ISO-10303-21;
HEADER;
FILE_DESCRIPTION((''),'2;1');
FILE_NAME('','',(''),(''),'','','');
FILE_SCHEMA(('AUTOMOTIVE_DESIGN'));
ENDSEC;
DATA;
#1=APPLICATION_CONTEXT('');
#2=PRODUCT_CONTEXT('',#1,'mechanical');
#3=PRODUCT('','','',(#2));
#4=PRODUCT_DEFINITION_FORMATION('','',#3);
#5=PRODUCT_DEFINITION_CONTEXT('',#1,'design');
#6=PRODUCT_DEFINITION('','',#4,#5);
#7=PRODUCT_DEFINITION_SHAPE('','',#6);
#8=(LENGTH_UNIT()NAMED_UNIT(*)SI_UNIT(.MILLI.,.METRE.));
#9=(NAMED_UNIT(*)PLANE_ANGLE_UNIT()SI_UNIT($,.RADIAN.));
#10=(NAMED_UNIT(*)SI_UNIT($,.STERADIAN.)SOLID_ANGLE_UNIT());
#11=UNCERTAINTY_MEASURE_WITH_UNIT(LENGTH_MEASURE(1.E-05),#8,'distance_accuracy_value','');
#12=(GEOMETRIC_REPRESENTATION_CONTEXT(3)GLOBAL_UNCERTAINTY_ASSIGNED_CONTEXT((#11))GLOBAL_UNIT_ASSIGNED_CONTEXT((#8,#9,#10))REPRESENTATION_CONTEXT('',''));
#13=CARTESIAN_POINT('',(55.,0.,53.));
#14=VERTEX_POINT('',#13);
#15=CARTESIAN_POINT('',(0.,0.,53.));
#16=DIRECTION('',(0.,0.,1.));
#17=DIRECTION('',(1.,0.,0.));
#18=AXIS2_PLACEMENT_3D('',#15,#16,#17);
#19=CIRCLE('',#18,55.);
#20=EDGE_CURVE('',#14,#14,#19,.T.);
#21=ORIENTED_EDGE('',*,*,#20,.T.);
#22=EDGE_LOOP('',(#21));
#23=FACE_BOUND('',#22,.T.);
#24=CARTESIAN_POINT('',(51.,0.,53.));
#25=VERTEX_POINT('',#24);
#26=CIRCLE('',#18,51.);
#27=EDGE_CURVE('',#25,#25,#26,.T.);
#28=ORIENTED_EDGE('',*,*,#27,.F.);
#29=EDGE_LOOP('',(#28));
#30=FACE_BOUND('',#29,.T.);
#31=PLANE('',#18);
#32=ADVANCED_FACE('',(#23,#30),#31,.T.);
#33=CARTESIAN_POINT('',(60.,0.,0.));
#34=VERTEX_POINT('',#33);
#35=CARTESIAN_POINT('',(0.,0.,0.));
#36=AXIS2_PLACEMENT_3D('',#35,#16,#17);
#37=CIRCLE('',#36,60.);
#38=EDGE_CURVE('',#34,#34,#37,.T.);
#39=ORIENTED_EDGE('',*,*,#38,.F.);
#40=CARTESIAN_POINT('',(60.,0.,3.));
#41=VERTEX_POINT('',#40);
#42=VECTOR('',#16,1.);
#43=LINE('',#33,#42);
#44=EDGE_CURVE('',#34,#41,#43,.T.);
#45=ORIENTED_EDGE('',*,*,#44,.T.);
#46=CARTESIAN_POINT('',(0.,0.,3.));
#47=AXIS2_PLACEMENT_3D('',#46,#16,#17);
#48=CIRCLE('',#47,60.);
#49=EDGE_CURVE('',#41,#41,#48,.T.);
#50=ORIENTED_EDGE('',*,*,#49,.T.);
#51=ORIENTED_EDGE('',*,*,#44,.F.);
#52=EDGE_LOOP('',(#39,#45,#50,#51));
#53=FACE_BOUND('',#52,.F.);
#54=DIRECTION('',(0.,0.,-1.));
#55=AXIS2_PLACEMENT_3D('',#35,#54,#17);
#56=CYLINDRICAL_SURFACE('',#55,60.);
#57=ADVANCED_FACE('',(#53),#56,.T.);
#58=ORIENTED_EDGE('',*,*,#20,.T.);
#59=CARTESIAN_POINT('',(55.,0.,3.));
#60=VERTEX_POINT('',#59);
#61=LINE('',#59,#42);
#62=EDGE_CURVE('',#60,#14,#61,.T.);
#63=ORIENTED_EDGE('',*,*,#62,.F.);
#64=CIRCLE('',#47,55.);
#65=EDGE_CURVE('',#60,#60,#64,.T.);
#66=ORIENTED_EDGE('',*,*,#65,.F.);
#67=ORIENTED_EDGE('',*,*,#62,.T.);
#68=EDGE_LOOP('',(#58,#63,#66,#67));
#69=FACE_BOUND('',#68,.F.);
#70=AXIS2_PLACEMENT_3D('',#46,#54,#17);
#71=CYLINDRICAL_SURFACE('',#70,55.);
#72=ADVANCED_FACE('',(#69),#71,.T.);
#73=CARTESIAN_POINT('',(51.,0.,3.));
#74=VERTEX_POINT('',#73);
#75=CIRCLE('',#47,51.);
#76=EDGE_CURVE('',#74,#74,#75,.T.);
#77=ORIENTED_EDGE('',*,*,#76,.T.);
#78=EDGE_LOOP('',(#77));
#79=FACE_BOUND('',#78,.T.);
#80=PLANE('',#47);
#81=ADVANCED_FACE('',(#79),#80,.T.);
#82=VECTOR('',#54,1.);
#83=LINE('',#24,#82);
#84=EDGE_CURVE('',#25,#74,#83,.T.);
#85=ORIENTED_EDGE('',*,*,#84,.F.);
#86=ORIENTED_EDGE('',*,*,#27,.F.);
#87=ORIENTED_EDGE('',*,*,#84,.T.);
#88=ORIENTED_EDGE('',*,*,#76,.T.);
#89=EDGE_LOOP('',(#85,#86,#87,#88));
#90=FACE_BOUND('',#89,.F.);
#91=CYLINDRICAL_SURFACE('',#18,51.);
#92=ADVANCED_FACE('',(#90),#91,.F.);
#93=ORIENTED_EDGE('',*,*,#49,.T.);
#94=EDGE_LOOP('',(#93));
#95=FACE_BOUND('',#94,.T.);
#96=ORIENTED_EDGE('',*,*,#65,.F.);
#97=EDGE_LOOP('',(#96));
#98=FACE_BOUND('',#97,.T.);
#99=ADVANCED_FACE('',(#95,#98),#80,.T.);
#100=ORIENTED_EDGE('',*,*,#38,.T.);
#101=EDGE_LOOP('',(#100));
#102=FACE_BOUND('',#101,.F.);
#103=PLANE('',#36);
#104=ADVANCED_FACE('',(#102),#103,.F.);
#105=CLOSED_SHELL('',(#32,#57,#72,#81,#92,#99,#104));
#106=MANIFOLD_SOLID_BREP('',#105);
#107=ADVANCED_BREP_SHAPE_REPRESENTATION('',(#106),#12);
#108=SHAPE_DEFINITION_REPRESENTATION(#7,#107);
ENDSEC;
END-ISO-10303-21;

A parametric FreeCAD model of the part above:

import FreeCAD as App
import Part
import Sketcher

V = App.Vector
Q = App.Units.Quantity

doc = App.newDocument("Part")
body = doc.addObject("PartDesign::Body", "Body")

# Sketch on XY plane
sketch1 = doc.addObject("Sketcher::SketchObject", "Sketch")
body.addObject(sketch1)
sketch1.AttachmentSupport = (doc.XY_Plane, [""])
sketch1.MapMode = "FlatFace"
sketch1.addGeometry(Part.Circle(V(0, 0, 0), V(0, 0, 1), 60), False)
sketch1.addConstraint(Sketcher.Constraint("Coincident", 0, 3, -1, 1))
sketch1.addConstraint(Sketcher.Constraint("Diameter", 0, Q("120 mm")))
pad1 = doc.addObject("PartDesign::Pad", "Pad")
body.addObject(pad1)
pad1.Profile = sketch1
pad1.Length = 3

# Sketch on XY plane
sketch2 = doc.addObject("Sketcher::SketchObject", "Sketch001")
body.addObject(sketch2)
sketch2.AttachmentSupport = (doc.XY_Plane, [""])
sketch2.MapMode = "FlatFace"
sketch2.AttachmentOffset = App.Placement(V(0, 0, 3), App.Rotation())
sketch2.addGeometry(Part.Circle(V(0, 0, 0), V(0, 0, 1), 55), False)
sketch2.addConstraint(Sketcher.Constraint("Coincident", 0, 3, -1, 1))
sketch2.addConstraint(Sketcher.Constraint("Diameter", 0, Q("110 mm")))
pad2 = doc.addObject("PartDesign::Pad", "Pad001")
body.addObject(pad2)
pad2.Profile = sketch2
pad2.Length = 50

# Sketch on XY plane
sketch3 = doc.addObject("Sketcher::SketchObject", "Sketch002")
body.addObject(sketch3)
sketch3.AttachmentSupport = (doc.XY_Plane, [""])
sketch3.MapMode = "FlatFace"
sketch3.AttachmentOffset = App.Placement(V(0, 0, 53), App.Rotation())
sketch3.addGeometry(Part.Circle(V(0, 0, 0), V(0, 0, 1), 51), False)
sketch3.addConstraint(Sketcher.Constraint("Coincident", 0, 3, -1, 1))
sketch3.addConstraint(Sketcher.Constraint("Diameter", 0, Q("102 mm")))
pocket1 = doc.addObject("PartDesign::Pocket", "Pocket")
body.addObject(pocket1)
pocket1.Profile = sketch3
pocket1.Length = 50

doc.recompute()
